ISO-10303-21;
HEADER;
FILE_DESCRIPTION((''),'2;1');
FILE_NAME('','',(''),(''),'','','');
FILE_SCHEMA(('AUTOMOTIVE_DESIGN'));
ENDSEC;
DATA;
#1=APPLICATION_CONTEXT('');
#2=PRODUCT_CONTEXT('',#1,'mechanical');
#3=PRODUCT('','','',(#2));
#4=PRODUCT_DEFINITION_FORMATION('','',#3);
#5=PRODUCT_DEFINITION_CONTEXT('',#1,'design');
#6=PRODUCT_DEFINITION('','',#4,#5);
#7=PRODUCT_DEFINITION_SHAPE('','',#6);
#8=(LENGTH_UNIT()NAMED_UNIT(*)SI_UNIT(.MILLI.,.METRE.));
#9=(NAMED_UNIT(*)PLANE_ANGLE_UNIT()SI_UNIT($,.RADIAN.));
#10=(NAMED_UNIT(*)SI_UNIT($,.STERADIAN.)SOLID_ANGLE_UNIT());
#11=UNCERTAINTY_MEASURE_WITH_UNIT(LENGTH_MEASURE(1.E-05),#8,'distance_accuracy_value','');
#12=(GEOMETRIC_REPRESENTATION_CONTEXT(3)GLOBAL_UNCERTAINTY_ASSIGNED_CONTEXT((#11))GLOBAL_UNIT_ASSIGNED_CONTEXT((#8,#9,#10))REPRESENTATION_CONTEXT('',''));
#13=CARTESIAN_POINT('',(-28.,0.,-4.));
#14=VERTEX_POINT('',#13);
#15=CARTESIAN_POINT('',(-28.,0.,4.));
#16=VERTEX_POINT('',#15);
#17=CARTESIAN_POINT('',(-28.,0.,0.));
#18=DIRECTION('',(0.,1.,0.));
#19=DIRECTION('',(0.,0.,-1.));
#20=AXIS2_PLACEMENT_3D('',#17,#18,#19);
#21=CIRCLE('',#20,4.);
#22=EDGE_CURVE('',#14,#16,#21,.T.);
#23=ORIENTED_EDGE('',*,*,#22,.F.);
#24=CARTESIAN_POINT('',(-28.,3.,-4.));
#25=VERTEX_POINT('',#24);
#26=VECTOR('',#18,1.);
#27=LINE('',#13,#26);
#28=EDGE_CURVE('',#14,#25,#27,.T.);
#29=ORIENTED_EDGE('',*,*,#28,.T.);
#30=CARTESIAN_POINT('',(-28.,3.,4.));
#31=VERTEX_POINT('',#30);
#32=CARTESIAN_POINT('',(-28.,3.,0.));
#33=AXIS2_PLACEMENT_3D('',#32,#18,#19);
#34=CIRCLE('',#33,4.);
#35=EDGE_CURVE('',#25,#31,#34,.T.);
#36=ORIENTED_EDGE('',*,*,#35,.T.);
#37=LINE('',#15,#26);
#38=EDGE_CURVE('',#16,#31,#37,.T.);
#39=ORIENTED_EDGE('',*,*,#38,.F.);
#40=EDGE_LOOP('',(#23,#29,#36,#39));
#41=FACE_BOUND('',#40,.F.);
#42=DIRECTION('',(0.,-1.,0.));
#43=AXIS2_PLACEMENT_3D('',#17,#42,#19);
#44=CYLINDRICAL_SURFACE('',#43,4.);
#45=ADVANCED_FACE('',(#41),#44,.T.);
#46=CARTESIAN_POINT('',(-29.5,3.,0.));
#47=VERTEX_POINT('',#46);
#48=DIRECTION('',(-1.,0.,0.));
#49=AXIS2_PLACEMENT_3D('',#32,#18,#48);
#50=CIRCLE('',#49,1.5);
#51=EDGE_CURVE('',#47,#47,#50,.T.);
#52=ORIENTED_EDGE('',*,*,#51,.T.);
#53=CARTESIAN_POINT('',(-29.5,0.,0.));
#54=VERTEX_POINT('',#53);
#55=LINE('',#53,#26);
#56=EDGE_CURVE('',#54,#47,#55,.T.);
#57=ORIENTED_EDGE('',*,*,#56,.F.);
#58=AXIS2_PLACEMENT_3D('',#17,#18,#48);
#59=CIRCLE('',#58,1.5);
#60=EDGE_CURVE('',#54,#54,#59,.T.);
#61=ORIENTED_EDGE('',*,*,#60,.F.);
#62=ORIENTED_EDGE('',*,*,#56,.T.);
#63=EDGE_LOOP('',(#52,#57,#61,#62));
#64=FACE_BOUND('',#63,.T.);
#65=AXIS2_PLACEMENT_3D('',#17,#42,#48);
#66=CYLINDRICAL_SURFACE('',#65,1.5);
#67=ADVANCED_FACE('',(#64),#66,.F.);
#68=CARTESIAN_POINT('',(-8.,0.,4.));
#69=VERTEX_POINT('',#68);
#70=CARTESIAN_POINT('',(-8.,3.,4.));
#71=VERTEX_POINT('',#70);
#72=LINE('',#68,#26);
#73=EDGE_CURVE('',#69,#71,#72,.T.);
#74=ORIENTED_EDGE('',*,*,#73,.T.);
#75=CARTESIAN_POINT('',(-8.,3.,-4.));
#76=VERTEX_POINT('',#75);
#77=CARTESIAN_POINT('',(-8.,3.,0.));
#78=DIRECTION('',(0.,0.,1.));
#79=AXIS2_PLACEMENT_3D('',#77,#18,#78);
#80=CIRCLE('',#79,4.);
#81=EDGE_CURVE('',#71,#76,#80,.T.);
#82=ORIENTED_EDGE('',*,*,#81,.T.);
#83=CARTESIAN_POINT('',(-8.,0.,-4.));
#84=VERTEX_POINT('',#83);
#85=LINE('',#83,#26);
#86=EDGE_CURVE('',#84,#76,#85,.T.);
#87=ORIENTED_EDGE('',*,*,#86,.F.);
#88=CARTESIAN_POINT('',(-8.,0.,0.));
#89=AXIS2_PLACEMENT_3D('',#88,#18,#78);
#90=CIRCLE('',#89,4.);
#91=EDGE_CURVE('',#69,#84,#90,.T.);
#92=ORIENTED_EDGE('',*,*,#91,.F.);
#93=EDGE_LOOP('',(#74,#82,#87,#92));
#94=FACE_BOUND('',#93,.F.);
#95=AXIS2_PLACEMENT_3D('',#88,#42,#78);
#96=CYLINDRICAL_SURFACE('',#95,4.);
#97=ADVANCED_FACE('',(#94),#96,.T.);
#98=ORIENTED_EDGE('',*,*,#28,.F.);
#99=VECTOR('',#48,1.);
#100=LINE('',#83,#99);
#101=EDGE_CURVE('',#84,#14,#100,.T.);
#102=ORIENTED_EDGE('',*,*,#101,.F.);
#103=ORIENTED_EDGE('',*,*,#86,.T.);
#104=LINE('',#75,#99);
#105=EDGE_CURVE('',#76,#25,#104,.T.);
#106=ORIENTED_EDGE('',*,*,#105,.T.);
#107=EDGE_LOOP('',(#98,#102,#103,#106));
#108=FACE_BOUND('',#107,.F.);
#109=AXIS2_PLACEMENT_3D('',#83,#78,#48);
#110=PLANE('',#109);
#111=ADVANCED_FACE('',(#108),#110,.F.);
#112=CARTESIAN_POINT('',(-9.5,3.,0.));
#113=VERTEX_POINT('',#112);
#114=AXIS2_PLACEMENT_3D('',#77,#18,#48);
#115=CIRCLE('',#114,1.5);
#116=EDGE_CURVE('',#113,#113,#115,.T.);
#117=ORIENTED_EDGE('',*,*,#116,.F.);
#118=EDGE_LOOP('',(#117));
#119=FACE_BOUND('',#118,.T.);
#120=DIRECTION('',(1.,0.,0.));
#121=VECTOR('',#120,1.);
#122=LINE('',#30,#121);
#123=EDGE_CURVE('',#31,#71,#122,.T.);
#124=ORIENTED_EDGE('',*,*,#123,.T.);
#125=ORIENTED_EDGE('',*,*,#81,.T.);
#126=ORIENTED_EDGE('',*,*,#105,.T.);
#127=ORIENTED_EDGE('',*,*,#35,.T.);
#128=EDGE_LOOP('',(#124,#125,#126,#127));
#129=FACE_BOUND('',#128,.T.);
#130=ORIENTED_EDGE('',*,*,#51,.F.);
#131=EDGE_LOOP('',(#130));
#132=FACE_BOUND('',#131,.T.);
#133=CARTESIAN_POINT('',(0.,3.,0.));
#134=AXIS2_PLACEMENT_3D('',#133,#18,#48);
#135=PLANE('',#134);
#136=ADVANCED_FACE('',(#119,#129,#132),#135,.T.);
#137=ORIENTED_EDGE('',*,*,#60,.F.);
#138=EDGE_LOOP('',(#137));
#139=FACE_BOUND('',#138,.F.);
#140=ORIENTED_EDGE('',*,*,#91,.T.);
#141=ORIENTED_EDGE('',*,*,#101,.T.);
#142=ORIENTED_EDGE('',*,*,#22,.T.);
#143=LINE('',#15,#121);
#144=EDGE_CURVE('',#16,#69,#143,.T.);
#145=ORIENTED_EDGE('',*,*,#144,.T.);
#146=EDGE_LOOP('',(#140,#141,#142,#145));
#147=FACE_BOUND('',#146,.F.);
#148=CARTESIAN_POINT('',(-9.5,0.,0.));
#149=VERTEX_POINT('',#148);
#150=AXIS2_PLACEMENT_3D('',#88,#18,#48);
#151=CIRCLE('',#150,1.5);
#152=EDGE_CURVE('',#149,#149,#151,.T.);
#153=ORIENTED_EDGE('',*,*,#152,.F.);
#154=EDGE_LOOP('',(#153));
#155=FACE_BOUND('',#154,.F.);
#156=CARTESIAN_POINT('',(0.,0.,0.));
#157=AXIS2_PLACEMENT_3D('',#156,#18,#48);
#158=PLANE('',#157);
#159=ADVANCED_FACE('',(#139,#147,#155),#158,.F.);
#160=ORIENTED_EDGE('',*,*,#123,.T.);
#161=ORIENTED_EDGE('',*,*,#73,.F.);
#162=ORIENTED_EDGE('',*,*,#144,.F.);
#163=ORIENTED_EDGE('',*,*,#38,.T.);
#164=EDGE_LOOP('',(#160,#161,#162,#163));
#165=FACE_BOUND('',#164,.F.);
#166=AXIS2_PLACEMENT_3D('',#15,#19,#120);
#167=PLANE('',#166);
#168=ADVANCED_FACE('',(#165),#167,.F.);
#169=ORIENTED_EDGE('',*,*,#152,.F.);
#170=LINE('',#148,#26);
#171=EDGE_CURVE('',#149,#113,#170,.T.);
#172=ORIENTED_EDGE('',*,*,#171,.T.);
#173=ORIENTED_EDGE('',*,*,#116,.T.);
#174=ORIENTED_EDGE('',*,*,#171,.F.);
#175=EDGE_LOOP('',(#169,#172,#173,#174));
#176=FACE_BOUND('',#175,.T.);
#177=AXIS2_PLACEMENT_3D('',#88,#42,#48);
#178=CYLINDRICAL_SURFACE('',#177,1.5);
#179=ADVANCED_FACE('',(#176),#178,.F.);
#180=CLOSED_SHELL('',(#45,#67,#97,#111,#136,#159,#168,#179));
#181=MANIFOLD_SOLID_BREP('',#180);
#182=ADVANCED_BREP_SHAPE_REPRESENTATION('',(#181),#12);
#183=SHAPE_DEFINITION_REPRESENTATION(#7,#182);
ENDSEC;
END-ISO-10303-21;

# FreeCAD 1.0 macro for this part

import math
import FreeCAD as App
import Part
import Sketcher

doc = App.newDocument("Part")
body = doc.addObject("PartDesign::Body", "Body")

sketch1 = body.newObject("Sketcher::SketchObject", "Sketch")
sketch1.AttachmentSupport = (doc.getObject("XZ_Plane"), [""])
sketch1.MapMode = "FlatFace"
sketch1.addGeometry(Part.LineSegment(App.Vector(-8, -4, 0), App.Vector(-28, -4, 0)), False)
sketch1.addGeometry(Part.ArcOfCircle(Part.Circle(App.Vector(-28, 0, 0), App.Vector(0, 0, 1), 4), math.radians(90), math.radians(270)), False)
sketch1.addGeometry(Part.LineSegment(App.Vector(-28, 4, 0), App.Vector(-8, 4, 0)), False)
sketch1.addGeometry(Part.ArcOfCircle(Part.Circle(App.Vector(-8, 0, 0), App.Vector(0, 0, 1), 4), math.radians(-90), math.radians(90)), False)
sketch1.addGeometry(Part.Circle(App.Vector(-8, 0, 0), App.Vector(0, 0, 1), 1.5), False)
sketch1.addGeometry(Part.Circle(App.Vector(-28, 0, 0), App.Vector(0, 0, 1), 1.5), False)
sketch1.addConstraint(Sketcher.Constraint("Tangent", 0, 2, 1, 2))
sketch1.addConstraint(Sketcher.Constraint("Tangent", 1, 1, 2, 1))
sketch1.addConstraint(Sketcher.Constraint("Tangent", 2, 2, 3, 2))
sketch1.addConstraint(Sketcher.Constraint("Tangent", 3, 1, 0, 1))
sketch1.addConstraint(Sketcher.Constraint("Horizontal", 0))
sketch1.addConstraint(Sketcher.Constraint("Horizontal", 2))
sketch1.addConstraint(Sketcher.Constraint("Coincident", 4, 3, 3, 3))
sketch1.addConstraint(Sketcher.Constraint("Coincident", 5, 3, 1, 3))
sketch1.addConstraint(Sketcher.Constraint("Equal", 4, 5))
sketch1.addConstraint(Sketcher.Constraint("PointOnObject", 1, 3, -1))
sketch1.addConstraint(Sketcher.Constraint("Diameter", 4, 3.0))
sketch1.addConstraint(Sketcher.Constraint("Radius", 1, 4.0))
sketch1.addConstraint(Sketcher.Constraint("DistanceX", 0, 2, 0, 1, 20.0))
sketch1.addConstraint(Sketcher.Constraint("DistanceX", 1, 3, -1, 1, 28.0))
pad1 = body.newObject("PartDesign::Pad", "Pad")
pad1.Profile = sketch1
pad1.Length = 3
pad1.Reversed = True

doc.recompute()
